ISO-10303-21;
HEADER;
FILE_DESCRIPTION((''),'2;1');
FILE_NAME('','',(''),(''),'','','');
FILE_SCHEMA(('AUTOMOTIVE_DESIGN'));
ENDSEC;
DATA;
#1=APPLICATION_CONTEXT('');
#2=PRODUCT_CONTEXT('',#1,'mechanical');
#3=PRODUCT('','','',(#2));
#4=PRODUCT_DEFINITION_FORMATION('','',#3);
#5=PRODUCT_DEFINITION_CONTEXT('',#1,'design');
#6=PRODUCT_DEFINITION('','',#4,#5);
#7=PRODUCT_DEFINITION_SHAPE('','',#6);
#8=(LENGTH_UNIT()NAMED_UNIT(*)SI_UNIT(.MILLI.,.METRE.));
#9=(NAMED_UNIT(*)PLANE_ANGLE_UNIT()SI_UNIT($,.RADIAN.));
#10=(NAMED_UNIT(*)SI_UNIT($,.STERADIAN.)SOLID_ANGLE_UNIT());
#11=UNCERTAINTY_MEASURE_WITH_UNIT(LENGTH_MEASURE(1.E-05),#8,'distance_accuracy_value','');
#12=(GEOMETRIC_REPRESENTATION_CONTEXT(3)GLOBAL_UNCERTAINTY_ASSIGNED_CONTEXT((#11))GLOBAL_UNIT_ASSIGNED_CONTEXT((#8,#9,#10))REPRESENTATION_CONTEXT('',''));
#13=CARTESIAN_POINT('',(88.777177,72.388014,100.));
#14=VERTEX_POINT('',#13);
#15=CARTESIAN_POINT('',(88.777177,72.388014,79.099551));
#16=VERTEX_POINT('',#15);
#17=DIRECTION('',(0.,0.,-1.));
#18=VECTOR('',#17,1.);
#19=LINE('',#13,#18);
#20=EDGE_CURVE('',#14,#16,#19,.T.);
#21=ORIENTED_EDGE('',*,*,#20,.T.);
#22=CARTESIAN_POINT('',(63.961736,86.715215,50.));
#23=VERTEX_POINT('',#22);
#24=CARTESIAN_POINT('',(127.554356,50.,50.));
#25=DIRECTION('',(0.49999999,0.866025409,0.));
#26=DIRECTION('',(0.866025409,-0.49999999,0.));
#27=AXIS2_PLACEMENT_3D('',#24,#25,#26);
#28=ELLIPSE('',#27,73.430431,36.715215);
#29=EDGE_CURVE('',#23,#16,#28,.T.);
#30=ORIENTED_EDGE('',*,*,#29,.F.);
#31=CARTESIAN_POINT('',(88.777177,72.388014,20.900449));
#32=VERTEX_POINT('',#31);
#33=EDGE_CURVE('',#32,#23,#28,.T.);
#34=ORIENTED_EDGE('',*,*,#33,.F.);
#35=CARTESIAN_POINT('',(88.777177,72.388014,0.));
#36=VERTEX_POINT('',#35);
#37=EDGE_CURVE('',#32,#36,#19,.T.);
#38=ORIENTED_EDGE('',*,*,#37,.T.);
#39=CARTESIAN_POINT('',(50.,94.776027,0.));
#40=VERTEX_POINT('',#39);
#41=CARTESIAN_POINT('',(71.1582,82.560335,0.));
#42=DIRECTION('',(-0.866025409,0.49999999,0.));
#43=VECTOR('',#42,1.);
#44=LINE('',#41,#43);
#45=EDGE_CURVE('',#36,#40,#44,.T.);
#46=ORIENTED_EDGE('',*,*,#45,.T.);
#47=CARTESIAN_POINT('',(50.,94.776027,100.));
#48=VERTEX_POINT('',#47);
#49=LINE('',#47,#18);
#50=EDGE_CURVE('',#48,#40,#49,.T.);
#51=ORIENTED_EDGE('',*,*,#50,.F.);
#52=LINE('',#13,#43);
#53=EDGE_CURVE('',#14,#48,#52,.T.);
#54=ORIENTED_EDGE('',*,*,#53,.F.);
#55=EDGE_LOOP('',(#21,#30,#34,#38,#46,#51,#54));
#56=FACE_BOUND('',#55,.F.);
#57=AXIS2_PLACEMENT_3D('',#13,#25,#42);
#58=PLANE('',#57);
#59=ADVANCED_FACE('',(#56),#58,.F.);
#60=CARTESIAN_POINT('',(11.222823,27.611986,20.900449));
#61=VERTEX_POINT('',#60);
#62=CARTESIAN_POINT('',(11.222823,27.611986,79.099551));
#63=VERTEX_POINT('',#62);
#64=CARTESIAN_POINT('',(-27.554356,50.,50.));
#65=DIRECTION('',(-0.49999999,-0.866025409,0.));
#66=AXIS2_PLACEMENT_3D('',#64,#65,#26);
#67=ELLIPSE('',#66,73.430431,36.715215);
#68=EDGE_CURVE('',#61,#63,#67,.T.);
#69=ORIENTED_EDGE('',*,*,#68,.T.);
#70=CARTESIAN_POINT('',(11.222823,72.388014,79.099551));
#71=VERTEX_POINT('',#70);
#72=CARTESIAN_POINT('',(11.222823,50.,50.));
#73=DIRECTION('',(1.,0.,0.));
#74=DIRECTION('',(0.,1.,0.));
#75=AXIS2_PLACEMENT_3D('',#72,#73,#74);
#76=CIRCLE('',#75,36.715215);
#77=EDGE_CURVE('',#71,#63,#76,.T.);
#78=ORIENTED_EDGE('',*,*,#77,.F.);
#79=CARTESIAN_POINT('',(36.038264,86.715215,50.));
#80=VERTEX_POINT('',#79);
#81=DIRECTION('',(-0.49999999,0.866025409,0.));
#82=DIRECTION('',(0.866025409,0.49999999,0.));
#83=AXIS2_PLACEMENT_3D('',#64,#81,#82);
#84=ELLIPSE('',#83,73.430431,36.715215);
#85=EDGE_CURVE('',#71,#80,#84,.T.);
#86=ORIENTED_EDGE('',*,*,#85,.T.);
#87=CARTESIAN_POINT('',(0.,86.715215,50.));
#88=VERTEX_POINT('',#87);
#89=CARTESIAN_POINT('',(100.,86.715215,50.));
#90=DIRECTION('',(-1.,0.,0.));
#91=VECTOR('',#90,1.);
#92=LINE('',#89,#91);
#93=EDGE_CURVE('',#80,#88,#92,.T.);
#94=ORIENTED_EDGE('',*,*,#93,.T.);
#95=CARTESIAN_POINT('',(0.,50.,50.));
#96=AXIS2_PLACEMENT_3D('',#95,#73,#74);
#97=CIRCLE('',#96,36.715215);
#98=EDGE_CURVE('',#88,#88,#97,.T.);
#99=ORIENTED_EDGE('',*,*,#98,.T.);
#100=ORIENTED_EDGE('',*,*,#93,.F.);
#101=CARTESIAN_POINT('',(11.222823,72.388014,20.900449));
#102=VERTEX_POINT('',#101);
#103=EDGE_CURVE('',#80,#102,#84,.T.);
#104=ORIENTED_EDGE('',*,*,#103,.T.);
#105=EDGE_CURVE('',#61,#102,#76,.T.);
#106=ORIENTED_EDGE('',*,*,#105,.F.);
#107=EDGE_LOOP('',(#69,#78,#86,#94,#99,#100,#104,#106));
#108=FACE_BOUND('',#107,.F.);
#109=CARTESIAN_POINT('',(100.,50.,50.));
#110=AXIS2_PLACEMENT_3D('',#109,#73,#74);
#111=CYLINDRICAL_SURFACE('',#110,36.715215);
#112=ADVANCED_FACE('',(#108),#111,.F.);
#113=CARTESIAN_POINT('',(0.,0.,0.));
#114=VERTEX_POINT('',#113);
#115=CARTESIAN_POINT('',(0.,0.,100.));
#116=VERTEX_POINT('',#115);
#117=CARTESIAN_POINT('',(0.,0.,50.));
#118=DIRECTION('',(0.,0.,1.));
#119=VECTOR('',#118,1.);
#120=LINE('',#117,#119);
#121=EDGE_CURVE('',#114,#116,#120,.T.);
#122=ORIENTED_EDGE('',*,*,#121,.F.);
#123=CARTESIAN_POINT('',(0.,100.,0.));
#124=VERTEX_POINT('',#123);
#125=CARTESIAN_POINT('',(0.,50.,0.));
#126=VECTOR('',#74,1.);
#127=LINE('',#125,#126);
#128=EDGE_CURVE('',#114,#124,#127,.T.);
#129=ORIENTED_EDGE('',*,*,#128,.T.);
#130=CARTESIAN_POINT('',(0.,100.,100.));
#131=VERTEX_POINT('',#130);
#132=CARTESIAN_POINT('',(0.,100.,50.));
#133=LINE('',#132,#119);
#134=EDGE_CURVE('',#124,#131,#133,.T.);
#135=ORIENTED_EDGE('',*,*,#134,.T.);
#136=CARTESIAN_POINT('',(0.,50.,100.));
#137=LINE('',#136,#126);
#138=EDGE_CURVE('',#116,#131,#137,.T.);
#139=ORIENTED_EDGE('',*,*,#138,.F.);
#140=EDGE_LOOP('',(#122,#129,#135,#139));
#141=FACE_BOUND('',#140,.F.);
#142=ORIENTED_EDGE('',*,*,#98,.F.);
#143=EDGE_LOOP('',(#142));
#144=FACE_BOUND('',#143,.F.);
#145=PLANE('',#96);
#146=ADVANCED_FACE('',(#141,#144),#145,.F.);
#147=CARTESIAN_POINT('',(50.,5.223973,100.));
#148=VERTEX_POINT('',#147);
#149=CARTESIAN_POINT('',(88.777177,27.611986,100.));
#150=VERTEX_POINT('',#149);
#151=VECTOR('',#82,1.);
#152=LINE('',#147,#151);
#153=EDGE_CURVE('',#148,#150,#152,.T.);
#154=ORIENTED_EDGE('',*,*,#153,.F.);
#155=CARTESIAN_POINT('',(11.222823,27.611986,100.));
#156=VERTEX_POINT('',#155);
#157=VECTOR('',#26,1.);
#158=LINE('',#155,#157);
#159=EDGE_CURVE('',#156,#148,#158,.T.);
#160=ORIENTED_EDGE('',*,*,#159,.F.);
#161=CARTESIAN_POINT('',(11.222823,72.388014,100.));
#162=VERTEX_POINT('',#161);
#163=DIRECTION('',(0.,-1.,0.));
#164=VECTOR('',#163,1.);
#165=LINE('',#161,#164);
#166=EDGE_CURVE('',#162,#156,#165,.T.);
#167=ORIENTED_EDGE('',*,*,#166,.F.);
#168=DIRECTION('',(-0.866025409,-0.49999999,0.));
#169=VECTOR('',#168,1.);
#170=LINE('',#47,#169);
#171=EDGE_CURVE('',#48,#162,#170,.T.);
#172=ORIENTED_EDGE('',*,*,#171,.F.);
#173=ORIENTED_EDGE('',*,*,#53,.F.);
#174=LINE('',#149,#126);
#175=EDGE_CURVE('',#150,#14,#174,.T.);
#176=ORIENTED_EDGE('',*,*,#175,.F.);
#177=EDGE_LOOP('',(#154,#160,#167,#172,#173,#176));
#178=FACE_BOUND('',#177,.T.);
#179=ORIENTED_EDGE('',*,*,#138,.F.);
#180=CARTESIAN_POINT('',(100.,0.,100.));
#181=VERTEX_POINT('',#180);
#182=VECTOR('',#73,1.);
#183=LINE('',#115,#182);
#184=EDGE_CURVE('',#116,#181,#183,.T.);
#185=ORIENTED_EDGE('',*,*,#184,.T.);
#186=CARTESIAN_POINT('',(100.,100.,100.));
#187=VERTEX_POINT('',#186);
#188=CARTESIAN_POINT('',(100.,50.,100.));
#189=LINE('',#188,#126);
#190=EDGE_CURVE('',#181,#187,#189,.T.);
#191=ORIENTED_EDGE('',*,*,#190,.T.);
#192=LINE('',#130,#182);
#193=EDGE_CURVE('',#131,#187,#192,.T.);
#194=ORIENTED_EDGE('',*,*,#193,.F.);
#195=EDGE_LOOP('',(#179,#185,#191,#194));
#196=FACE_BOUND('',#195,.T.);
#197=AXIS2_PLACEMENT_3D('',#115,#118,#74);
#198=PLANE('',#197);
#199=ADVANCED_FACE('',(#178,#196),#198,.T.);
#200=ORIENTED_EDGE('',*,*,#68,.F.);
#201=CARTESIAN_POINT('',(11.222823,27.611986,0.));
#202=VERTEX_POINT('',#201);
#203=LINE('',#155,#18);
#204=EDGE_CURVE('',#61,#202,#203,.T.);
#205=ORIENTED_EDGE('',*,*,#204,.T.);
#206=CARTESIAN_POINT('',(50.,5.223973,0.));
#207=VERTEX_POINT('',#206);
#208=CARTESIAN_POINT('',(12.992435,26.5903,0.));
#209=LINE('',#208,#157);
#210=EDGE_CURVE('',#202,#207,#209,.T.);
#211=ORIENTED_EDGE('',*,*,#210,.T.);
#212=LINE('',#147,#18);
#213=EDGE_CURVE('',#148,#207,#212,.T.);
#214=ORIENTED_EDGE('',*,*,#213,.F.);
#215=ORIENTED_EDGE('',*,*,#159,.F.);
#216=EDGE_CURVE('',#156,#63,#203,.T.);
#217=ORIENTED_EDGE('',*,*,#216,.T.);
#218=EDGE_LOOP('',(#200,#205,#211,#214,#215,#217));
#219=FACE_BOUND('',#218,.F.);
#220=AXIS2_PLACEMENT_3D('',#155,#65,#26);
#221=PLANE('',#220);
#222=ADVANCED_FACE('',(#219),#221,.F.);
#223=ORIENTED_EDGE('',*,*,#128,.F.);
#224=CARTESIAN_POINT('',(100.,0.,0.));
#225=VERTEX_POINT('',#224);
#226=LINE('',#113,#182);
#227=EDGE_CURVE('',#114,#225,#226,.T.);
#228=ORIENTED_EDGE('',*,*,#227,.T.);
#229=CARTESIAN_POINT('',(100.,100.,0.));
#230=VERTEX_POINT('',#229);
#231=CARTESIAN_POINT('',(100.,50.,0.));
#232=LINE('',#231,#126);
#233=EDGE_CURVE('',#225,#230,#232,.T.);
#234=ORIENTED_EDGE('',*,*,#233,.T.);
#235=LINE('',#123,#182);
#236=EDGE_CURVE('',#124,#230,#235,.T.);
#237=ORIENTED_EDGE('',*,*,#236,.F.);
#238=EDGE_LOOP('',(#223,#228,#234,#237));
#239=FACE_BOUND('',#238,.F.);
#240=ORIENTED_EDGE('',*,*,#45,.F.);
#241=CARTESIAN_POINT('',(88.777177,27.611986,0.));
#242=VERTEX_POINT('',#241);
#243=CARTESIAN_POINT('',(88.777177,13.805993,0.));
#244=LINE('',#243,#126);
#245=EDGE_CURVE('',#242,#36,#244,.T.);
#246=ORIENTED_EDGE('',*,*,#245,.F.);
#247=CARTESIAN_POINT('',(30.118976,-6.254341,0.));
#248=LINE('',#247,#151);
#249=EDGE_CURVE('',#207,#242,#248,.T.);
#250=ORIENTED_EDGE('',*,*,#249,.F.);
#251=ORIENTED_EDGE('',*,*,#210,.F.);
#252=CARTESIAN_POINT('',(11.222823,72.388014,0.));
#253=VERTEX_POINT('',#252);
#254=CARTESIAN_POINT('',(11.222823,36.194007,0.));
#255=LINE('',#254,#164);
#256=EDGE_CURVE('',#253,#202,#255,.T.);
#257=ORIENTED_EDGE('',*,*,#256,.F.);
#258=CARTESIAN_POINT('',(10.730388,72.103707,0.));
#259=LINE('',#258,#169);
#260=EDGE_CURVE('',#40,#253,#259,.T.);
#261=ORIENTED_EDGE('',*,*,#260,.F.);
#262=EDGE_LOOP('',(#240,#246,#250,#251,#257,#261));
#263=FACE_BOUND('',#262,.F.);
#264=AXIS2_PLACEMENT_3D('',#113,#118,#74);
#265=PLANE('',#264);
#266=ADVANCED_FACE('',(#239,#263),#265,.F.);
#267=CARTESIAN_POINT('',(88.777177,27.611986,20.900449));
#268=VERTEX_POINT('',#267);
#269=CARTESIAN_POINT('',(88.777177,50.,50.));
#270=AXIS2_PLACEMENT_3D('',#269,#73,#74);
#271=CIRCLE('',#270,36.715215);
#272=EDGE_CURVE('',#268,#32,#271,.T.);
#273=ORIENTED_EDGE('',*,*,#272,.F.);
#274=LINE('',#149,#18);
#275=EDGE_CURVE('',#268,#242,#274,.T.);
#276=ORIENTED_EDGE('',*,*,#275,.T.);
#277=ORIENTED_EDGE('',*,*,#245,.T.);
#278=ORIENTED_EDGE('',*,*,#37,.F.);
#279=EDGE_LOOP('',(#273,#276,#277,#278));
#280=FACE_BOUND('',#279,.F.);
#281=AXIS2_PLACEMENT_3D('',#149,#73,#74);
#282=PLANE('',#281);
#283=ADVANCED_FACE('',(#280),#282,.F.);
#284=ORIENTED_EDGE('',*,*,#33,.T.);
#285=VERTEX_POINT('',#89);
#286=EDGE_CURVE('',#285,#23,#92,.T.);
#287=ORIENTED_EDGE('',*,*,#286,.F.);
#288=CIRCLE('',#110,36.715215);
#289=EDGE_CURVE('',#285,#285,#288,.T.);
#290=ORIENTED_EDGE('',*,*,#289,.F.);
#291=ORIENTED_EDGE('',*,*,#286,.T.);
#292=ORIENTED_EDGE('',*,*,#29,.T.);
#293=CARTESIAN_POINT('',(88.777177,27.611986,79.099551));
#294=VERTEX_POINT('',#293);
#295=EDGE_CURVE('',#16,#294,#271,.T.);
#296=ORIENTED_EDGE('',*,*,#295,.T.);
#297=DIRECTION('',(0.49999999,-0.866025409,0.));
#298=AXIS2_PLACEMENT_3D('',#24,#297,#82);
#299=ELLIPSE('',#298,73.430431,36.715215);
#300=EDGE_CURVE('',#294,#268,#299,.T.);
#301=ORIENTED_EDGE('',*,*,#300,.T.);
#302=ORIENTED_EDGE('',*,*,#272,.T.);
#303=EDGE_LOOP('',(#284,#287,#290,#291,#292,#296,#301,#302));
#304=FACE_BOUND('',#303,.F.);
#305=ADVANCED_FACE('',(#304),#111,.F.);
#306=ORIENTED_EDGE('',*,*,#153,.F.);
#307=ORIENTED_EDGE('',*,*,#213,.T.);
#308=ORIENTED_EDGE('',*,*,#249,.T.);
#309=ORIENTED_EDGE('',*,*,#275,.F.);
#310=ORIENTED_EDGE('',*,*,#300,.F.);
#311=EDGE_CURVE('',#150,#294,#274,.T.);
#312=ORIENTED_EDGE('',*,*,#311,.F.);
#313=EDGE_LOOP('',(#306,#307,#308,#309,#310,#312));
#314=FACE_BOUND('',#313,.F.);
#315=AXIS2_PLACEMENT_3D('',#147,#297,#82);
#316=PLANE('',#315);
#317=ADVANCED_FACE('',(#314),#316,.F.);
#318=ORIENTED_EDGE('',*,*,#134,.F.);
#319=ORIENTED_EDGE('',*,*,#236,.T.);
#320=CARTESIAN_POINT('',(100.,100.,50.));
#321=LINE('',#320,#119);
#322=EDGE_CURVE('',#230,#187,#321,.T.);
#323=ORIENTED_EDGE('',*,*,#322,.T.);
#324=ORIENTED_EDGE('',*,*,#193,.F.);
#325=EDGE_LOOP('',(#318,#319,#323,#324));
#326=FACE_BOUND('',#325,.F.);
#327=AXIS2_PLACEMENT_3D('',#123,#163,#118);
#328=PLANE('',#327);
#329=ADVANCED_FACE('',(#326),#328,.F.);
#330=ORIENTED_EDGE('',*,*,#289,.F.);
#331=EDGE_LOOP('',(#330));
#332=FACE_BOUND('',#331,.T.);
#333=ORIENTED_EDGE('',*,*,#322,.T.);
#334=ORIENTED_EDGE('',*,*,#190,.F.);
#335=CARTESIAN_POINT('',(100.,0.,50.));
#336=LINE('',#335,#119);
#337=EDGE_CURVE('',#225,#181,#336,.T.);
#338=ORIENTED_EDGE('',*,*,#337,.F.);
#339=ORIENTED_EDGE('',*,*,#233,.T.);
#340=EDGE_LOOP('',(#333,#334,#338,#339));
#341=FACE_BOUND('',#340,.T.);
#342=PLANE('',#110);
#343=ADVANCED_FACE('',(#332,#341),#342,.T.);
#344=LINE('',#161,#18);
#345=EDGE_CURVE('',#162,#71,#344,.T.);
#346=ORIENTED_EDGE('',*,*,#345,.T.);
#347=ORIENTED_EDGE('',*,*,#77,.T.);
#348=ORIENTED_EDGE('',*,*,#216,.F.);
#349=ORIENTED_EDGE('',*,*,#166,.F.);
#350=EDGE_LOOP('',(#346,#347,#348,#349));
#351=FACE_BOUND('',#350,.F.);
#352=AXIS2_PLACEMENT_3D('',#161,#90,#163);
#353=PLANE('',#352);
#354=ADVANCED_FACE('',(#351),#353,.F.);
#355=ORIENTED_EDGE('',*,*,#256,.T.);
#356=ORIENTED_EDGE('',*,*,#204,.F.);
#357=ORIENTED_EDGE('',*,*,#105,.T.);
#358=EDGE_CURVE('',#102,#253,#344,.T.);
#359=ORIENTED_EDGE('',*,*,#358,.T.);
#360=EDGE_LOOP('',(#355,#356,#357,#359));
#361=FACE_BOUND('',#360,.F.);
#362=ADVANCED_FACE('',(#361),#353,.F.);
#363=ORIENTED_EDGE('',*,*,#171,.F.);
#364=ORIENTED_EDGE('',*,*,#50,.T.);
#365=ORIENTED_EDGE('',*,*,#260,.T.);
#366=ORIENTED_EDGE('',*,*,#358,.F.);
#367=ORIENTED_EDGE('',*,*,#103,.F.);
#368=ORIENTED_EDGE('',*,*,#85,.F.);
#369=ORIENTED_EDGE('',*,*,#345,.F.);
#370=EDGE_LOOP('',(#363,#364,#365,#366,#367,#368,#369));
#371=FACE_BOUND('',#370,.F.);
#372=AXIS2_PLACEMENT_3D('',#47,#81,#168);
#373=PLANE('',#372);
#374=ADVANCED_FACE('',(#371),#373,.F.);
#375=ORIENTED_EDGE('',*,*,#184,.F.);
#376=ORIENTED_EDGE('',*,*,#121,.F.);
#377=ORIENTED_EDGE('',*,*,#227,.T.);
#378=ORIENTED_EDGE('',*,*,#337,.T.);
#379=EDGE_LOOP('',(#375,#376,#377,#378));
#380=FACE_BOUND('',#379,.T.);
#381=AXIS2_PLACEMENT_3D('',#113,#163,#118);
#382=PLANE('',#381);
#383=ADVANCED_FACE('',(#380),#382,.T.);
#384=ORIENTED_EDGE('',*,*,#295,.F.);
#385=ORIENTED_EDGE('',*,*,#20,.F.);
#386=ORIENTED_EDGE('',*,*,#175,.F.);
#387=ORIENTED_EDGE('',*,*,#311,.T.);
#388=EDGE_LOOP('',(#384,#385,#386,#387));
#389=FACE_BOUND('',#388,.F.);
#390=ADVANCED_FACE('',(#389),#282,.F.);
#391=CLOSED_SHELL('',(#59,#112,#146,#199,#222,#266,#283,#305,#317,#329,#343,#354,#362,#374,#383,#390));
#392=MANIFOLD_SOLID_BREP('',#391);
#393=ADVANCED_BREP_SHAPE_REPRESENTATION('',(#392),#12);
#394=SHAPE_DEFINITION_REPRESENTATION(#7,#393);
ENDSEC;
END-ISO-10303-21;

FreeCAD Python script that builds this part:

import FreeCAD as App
import Part
import Sketcher
Q = App.Units.Quantity


def add_polygon(sketch, points):
    """Adds a closed chain of lines whose ends are joined by coincident constraints."""
    first, n = sketch.GeometryCount, len(points)
    for a, b in zip(points, points[1:] + points[:1]):
        sketch.addGeometry(Part.LineSegment(App.Vector(*a, 0), App.Vector(*b, 0)), False)
    for i in range(n):
        sketch.addConstraint(Sketcher.Constraint("Coincident", first + i, 2, first + (i + 1) % n, 1))

doc = App.newDocument("Part")
body = doc.addObject("PartDesign::Body", "Body")

# Sketch on YZ plane
sketch1 = body.newObject("Sketcher::SketchObject", "Sketch")
sketch1.AttachmentSupport = (doc.getObject("YZ_Plane"), [""])
sketch1.MapMode = "FlatFace"
add_polygon(sketch1, [(0, 100), (0, 0), (100, 0), (100, 100)])  # lines 0-3
sketch1.addConstraint(Sketcher.Constraint("Vertical", 0))
sketch1.addConstraint(Sketcher.Constraint("Horizontal", 1))
sketch1.addConstraint(Sketcher.Constraint("Vertical", 2))
sketch1.addConstraint(Sketcher.Constraint("Horizontal", 3))
sketch1.addConstraint(Sketcher.Constraint("Coincident", 0, 2, -1, 1))
sketch1.addConstraint(Sketcher.Constraint("Equal", 3, 0))
sketch1.addConstraint(Sketcher.Constraint("DistanceX", 1, 1, 1, 2, Q("100 mm")))
pad1 = body.newObject("PartDesign::Pad", "Pad")
pad1.Profile = sketch1
pad1.Length = 100

# Sketch on YZ plane
sketch2 = body.newObject("Sketcher::SketchObject", "Sketch001")
sketch2.AttachmentSupport = (doc.getObject("YZ_Plane"), [""])
sketch2.MapMode = "FlatFace"
sketch2.AttachmentOffset = App.Placement(App.Vector(0, 0, 100), App.Rotation())
sketch2.addGeometry(Part.Circle(App.Vector(50, 50, 0), App.Vector(0, 0, 1), 37), False)
sketch2.addConstraint(Sketcher.Constraint("DistanceX", -1, 1, 0, 3, Q("50 mm")))
sketch2.addConstraint(Sketcher.Constraint("DistanceY", -1, 1, 0, 3, Q("50 mm")))
sketch2.addConstraint(Sketcher.Constraint("Diameter", 0, Q("73.43043 mm")))
pocket1 = body.newObject("PartDesign::Pocket", "Pocket")
pocket1.Profile = sketch2
pocket1.Type = "ThroughAll"

# Sketch on XY plane
sketch3 = body.newObject("Sketcher::SketchObject", "Sketch002")
sketch3.AttachmentSupport = (doc.getObject("XY_Plane"), [""])
sketch3.MapMode = "FlatFace"
sketch3.AttachmentOffset = App.Placement(App.Vector(0, 0, 100), App.Rotation())
add_polygon(sketch3, [(89, 28), (89, 72), (50, 95), (11, 72), (11, 28), (50, 5)])  # lines 0-5
sketch3.addConstraint(Sketcher.Constraint("Vertical", 0))
sketch3.addConstraint(Sketcher.Constraint("Vertical", 3))
sketch3.addConstraint(Sketcher.Constraint("Parallel", 1, 4))
sketch3.addConstraint(Sketcher.Constraint("Parallel", 2, 5))
sketch3.addConstraint(Sketcher.Constraint("Horizontal", 0, 2, 2, 2))
sketch3.addConstraint(Sketcher.Constraint("Horizontal", 3, 2, 5, 2))
sketch3.addConstraint(Sketcher.Constraint("Vertical", 1, 2, 4, 2))
sketch3.addConstraint(Sketcher.Constraint("Angle", 1, Q("150.000001 deg")))
sketch3.addConstraint(Sketcher.Constraint("DistanceX", -1, 1, 1, 2, Q("50 mm")))
sketch3.addConstraint(Sketcher.Constraint("DistanceY", 0, 1, 0, 2, Q("44.776028 mm")))
sketch3.addConstraint(Sketcher.Constraint("DistanceY", 3, 2, 1, 2, Q("67.164041 mm")))
sketch3.addConstraint(Sketcher.Constraint("DistanceY", -1, 1, 0, 2, Q("72.388014 mm")))
pocket2 = body.newObject("PartDesign::Pocket", "Pocket001")
pocket2.Profile = sketch3
pocket2.Type = "ThroughAll"

doc.recompute()
